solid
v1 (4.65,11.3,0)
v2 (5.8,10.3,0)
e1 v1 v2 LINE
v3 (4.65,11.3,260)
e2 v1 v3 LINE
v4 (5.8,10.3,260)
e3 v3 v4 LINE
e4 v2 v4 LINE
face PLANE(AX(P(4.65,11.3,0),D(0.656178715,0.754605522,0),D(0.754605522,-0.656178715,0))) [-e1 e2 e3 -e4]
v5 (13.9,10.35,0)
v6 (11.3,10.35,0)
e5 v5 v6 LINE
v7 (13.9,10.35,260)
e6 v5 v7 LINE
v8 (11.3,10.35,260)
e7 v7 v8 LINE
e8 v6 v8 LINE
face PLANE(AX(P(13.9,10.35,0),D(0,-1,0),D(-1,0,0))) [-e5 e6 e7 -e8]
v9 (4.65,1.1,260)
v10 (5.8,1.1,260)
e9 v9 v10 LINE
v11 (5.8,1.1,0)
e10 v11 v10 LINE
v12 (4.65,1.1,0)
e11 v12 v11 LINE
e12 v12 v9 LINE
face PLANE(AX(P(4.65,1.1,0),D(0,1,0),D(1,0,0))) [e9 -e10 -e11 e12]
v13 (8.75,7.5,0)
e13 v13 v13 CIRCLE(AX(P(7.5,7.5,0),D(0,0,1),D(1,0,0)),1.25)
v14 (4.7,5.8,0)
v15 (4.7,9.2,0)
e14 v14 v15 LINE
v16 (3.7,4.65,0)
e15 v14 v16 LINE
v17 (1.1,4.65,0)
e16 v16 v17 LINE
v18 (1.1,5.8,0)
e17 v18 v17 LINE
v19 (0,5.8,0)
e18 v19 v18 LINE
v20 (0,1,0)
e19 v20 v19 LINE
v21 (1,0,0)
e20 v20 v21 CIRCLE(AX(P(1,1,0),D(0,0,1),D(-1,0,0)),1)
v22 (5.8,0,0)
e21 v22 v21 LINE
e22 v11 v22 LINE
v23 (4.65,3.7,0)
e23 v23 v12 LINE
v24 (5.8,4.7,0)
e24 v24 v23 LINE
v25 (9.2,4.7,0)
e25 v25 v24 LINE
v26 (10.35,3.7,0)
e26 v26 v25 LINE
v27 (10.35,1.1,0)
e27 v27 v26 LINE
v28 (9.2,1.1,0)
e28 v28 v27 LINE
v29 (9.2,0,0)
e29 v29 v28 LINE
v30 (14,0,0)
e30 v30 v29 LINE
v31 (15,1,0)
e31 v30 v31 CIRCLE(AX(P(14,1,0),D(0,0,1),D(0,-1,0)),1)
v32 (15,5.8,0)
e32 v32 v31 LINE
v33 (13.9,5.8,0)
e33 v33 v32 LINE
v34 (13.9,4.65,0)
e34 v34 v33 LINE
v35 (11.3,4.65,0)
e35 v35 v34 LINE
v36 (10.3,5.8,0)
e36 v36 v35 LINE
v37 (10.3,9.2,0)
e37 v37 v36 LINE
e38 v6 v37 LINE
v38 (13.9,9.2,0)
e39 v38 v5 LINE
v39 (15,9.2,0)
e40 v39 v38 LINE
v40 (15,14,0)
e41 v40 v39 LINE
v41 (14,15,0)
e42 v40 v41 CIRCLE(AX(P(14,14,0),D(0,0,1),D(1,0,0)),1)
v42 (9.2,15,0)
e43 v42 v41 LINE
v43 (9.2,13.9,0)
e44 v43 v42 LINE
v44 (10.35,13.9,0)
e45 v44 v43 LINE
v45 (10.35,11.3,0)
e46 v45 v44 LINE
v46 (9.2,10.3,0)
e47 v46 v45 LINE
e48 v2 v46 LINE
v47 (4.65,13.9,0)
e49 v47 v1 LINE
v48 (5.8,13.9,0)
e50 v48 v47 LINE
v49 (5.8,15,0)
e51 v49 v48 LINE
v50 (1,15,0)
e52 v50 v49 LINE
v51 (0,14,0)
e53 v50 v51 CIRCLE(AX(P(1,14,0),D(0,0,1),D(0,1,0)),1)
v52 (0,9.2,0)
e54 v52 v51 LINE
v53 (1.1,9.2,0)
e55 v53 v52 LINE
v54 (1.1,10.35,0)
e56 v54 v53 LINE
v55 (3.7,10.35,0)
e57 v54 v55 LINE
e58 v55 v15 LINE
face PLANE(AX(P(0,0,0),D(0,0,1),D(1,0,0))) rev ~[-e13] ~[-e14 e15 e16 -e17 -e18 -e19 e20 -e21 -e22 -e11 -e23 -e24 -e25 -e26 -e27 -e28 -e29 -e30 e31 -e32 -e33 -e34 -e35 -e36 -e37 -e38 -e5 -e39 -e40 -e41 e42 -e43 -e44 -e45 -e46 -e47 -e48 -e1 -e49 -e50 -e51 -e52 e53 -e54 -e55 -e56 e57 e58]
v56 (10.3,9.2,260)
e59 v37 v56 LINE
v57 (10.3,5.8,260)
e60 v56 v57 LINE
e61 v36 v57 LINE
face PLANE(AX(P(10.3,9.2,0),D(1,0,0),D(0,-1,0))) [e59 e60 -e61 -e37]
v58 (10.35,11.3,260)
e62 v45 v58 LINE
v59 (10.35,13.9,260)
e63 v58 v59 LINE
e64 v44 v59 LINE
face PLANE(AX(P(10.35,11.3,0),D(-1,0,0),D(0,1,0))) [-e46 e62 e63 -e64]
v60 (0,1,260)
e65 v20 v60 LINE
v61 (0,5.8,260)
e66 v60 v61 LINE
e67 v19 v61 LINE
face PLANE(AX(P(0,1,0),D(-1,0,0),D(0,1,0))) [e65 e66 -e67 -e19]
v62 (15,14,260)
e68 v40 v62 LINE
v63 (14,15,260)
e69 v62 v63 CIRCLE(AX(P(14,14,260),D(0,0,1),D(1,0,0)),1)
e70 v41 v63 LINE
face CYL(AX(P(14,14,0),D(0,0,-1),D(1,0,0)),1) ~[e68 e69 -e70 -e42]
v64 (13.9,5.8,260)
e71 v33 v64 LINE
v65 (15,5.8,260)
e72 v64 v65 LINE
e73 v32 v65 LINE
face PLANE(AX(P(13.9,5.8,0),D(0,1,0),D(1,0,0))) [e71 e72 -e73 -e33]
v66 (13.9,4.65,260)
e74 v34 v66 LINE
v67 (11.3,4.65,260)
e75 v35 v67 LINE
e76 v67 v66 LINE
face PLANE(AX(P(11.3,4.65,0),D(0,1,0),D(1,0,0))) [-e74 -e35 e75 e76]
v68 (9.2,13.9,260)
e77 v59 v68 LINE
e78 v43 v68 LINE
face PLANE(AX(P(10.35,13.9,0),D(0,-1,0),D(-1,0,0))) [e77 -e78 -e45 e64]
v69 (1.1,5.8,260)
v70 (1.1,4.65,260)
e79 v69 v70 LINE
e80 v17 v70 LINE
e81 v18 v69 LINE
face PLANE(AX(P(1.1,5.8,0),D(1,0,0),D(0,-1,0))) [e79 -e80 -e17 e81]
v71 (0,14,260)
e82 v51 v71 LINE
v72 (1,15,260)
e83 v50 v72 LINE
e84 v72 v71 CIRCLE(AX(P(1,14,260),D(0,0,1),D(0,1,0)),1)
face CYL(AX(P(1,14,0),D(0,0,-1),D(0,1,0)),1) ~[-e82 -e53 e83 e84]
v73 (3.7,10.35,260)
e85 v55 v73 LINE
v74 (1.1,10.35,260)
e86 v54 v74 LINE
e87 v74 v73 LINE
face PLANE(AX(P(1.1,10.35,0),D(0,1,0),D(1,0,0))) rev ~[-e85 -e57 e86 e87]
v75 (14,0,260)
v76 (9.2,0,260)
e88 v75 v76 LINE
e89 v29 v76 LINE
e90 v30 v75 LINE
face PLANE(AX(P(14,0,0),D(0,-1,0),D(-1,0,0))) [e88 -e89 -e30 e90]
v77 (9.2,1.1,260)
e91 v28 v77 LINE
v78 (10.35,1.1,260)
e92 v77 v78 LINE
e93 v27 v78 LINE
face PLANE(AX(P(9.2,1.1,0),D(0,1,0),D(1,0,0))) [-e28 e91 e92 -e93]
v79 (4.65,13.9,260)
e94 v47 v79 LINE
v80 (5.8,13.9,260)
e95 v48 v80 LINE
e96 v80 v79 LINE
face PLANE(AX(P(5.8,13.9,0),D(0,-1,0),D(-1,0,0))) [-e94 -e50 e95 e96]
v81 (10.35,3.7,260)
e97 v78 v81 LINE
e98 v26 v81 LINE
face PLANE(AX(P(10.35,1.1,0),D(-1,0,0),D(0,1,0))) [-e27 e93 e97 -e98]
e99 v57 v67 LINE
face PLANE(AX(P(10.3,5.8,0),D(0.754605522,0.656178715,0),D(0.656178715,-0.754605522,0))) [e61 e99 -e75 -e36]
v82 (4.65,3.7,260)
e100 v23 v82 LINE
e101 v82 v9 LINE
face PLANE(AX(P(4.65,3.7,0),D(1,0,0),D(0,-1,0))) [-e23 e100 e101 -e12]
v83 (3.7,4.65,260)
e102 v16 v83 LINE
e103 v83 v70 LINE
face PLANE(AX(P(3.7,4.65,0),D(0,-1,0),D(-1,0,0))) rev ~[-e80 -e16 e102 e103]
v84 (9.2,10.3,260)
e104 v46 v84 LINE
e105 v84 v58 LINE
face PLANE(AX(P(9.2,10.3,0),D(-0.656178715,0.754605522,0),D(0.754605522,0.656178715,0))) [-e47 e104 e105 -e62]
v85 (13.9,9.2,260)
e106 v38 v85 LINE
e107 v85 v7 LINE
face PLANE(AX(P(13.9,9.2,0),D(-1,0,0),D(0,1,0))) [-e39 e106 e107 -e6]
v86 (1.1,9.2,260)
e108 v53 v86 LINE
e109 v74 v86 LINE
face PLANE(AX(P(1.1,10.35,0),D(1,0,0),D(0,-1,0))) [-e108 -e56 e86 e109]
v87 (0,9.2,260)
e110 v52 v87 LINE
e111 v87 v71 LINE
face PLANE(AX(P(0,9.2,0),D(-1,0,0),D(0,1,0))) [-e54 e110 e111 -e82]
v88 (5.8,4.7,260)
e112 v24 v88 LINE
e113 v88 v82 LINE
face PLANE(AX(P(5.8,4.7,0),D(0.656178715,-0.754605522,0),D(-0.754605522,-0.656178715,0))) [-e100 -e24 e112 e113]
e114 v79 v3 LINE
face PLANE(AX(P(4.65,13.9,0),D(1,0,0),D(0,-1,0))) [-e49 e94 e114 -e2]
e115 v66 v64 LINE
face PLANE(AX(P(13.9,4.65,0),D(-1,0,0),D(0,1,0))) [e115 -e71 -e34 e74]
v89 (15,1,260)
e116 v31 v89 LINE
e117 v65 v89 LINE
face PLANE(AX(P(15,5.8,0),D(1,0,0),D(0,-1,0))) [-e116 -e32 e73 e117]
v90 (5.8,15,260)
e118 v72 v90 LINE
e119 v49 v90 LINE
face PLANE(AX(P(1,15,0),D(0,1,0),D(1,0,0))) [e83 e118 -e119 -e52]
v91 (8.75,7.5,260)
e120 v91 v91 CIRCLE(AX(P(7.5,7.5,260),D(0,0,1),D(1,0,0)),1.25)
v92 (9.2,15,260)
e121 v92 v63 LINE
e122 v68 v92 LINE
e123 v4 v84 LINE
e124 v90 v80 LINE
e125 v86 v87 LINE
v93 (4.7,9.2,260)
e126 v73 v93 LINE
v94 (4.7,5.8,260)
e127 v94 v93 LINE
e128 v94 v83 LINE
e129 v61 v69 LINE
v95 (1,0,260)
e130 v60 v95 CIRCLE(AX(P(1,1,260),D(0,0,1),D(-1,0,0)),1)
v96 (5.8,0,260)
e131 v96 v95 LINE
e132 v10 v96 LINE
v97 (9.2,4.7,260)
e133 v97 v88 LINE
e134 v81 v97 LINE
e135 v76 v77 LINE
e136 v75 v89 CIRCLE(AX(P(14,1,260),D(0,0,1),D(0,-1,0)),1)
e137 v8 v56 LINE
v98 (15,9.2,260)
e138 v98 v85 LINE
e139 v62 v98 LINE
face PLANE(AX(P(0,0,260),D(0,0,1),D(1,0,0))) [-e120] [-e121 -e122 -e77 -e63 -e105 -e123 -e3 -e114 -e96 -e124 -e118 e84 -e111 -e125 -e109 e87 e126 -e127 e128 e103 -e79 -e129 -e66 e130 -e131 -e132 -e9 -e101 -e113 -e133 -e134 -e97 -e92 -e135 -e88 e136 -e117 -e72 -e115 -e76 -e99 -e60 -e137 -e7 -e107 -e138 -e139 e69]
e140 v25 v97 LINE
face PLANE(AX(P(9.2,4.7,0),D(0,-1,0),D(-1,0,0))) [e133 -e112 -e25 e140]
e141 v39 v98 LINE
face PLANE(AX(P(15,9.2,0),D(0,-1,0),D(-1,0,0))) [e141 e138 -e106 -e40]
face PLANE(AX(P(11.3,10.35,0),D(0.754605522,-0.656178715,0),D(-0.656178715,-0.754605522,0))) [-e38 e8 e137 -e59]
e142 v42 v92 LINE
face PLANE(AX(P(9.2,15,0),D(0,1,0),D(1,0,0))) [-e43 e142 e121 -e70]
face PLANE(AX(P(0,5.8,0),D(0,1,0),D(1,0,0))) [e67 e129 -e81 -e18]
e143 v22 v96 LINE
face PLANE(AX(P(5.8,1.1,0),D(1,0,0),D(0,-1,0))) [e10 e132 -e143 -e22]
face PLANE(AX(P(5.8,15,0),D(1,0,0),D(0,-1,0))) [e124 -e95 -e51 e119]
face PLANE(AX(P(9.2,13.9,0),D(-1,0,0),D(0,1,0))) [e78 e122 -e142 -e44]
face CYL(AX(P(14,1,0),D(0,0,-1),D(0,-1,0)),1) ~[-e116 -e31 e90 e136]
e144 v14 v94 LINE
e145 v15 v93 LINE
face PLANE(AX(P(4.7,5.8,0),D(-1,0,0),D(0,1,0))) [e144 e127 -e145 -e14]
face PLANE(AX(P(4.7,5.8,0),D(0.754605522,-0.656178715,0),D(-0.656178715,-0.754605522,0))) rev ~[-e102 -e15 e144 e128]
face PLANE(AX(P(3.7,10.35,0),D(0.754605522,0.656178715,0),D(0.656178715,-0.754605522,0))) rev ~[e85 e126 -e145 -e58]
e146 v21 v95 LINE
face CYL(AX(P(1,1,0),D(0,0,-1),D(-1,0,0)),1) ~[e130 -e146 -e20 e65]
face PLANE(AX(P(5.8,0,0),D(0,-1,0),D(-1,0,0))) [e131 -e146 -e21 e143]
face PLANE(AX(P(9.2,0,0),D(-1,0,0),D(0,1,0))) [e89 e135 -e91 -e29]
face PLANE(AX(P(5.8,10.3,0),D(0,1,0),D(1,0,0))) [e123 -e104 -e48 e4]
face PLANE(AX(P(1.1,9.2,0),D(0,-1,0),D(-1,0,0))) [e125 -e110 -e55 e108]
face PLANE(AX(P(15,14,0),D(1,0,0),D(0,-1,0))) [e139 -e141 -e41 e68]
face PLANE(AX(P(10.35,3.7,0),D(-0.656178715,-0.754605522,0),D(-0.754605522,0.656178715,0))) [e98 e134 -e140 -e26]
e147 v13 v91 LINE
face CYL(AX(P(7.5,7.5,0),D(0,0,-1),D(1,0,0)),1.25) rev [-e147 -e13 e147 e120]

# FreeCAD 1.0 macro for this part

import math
import FreeCAD as App
import Part
import Sketcher
from FreeCAD import Vector

doc = App.newDocument("Part")
params = doc.addObject("Spreadsheet::Sheet", "Params")
for row, (alias, value) in enumerate([
    ("sketch1_radius", "1 mm"),
    ("sketch1_diameter", "2.5 mm"),
    ("sketch1_width", "3.4 mm"),
    ("sketch1_width2", "1.1 mm"),
    ("sketch1_width3", "1.15 mm"),
    ("pad1_length", "260 mm"),
], start=1):
    params.set(f"A{row}", alias)
    params.set(f"B{row}", "=" + value)
    params.setAlias(f"B{row}", alias)

body = doc.addObject("PartDesign::Body", "Body")

sketch1 = body.newObject("Sketcher::SketchObject", "Sketch")
sketch1.AttachmentSupport = (doc.getObject("XY_Plane"), [""])
sketch1.MapMode = "FlatFace"
sketch1.addGeometry([
    Part.LineSegment(Vector(0, 5.8, 0), Vector(0, 1, 0)),
    Part.ArcOfCircle(Part.Circle(Vector(1, 1, 0), Vector(0, 0, 1), 1), math.radians(180), math.radians(270)),
    Part.LineSegment(Vector(1, 0, 0), Vector(5.8, 0, 0)),
    Part.LineSegment(Vector(5.8, 0, 0), Vector(5.8, 1.1, 0)),
    Part.LineSegment(Vector(5.8, 1.1, 0), Vector(4.7, 1.1, 0)),
    Part.LineSegment(Vector(4.7, 1.1, 0), Vector(4.7, 3.7, 0)),
    Part.LineSegment(Vector(4.7, 3.7, 0), Vector(5.8, 4.7, 0)),
    Part.LineSegment(Vector(5.8, 4.7, 0), Vector(9.2, 4.7, 0)),
    Part.LineSegment(Vector(9.2, 4.7, 0), Vector(10.3, 3.7, 0)),
    Part.LineSegment(Vector(10.3, 3.7, 0), Vector(10.3, 1.1, 0)),
    Part.LineSegment(Vector(10.3, 1.1, 0), Vector(9.2, 1.1, 0)),
    Part.LineSegment(Vector(9.2, 1.1, 0), Vector(9.2, 0, 0)),
    Part.LineSegment(Vector(9.2, 0, 0), Vector(14, 0, 0)),
    Part.ArcOfCircle(Part.Circle(Vector(14, 1, 0), Vector(0, 0, 1), 1), math.radians(-90), math.radians(0)),
    Part.LineSegment(Vector(15, 1, 0), Vector(15, 5.8, 0)),
    Part.LineSegment(Vector(15, 5.8, 0), Vector(13.9, 5.8, 0)),
    Part.LineSegment(Vector(13.9, 5.8, 0), Vector(13.9, 4.7, 0)),
    Part.LineSegment(Vector(13.9, 4.7, 0), Vector(11.3, 4.7, 0)),
    Part.LineSegment(Vector(11.3, 4.7, 0), Vector(10.3, 5.8, 0)),
    Part.LineSegment(Vector(10.3, 5.8, 0), Vector(10.3, 9.2, 0)),
    Part.LineSegment(Vector(10.3, 9.2, 0), Vector(11.3, 10.3, 0)),
    Part.LineSegment(Vector(11.3, 10.3, 0), Vector(13.9, 10.3, 0)),
    Part.LineSegment(Vector(13.9, 10.3, 0), Vector(13.9, 9.2, 0)),
    Part.LineSegment(Vector(13.9, 9.2, 0), Vector(15, 9.2, 0)),
    Part.LineSegment(Vector(15, 9.2, 0), Vector(15, 14, 0)),
    Part.ArcOfCircle(Part.Circle(Vector(14, 14, 0), Vector(0, 0, 1), 1), math.radians(0), math.radians(90)),
    Part.LineSegment(Vector(14, 15, 0), Vector(9.2, 15, 0)),
    Part.LineSegment(Vector(9.2, 15, 0), Vector(9.2, 13.9, 0)),
    Part.LineSegment(Vector(9.2, 13.9, 0), Vector(10.3, 13.9, 0)),
    Part.LineSegment(Vector(10.3, 13.9, 0), Vector(10.3, 11.3, 0)),
    Part.LineSegment(Vector(10.3, 11.3, 0), Vector(9.2, 10.3, 0)),
    Part.LineSegment(Vector(9.2, 10.3, 0), Vector(5.8, 10.3, 0)),
    Part.LineSegment(Vector(5.8, 10.3, 0), Vector(4.7, 11.3, 0)),
    Part.LineSegment(Vector(4.7, 11.3, 0), Vector(4.7, 13.9, 0)),
    Part.LineSegment(Vector(4.7, 13.9, 0), Vector(5.8, 13.9, 0)),
    Part.LineSegment(Vector(5.8, 13.9, 0), Vector(5.8, 15, 0)),
    Part.LineSegment(Vector(5.8, 15, 0), Vector(1, 15, 0)),
    Part.ArcOfCircle(Part.Circle(Vector(1, 14, 0), Vector(0, 0, 1), 1), math.radians(90), math.radians(180)),
    Part.LineSegment(Vector(0, 14, 0), Vector(0, 9.2, 0)),
    Part.LineSegment(Vector(0, 9.2, 0), Vector(1.1, 9.2, 0)),
    Part.LineSegment(Vector(1.1, 9.2, 0), Vector(1.1, 10.3, 0)),
    Part.LineSegment(Vector(1.1, 10.3, 0), Vector(3.7, 10.3, 0)),
    Part.LineSegment(Vector(3.7, 10.3, 0), Vector(4.7, 9.2, 0)),
    Part.LineSegment(Vector(4.7, 9.2, 0), Vector(4.7, 5.8, 0)),
    Part.LineSegment(Vector(4.7, 5.8, 0), Vector(3.7, 4.7, 0)),
    Part.LineSegment(Vector(3.7, 4.7, 0), Vector(1.1, 4.7, 0)),
    Part.LineSegment(Vector(1.1, 4.7, 0), Vector(1.1, 5.8, 0)),
    Part.LineSegment(Vector(1.1, 5.8, 0), Vector(0, 5.8, 0)),
    Part.Circle(Vector(7.5, 7.5, 0), Vector(0, 0, 1), 1.2),
], False)
sketch1.addConstraint([
    Sketcher.Constraint("Tangent", 0, 2, 1, 1),
    Sketcher.Constraint("Tangent", 1, 2, 2, 1),
    Sketcher.Constraint("Coincident", 2, 2, 3, 1),
    Sketcher.Constraint("Coincident", 3, 2, 4, 1),
    Sketcher.Constraint("Coincident", 4, 2, 5, 1),
    Sketcher.Constraint("Coincident", 5, 2, 6, 1),
    Sketcher.Constraint("Coincident", 6, 2, 7, 1),
    Sketcher.Constraint("Coincident", 7, 2, 8, 1),
    Sketcher.Constraint("Coincident", 8, 2, 9, 1),
    Sketcher.Constraint("Coincident", 9, 2, 10, 1),
    Sketcher.Constraint("Coincident", 10, 2, 11, 1),
    Sketcher.Constraint("Coincident", 11, 2, 12, 1),
    Sketcher.Constraint("Tangent", 12, 2, 13, 1),
    Sketcher.Constraint("Tangent", 13, 2, 14, 1),
    Sketcher.Constraint("Coincident", 14, 2, 15, 1),
    Sketcher.Constraint("Coincident", 15, 2, 16, 1),
    Sketcher.Constraint("Coincident", 16, 2, 17, 1),
    Sketcher.Constraint("Coincident", 17, 2, 18, 1),
    Sketcher.Constraint("Coincident", 18, 2, 19, 1),
    Sketcher.Constraint("Coincident", 19, 2, 20, 1),
    Sketcher.Constraint("Coincident", 20, 2, 21, 1),
    Sketcher.Constraint("Coincident", 21, 2, 22, 1),
    Sketcher.Constraint("Coincident", 22, 2, 23, 1),
    Sketcher.Constraint("Coincident", 23, 2, 24, 1),
    Sketcher.Constraint("Tangent", 24, 2, 25, 1),
    Sketcher.Constraint("Tangent", 25, 2, 26, 1),
    Sketcher.Constraint("Coincident", 26, 2, 27, 1),
    Sketcher.Constraint("Coincident", 27, 2, 28, 1),
    Sketcher.Constraint("Coincident", 28, 2, 29, 1),
    Sketcher.Constraint("Coincident", 29, 2, 30, 1),
    Sketcher.Constraint("Coincident", 30, 2, 31, 1),
    Sketcher.Constraint("Coincident", 31, 2, 32, 1),
    Sketcher.Constraint("Coincident", 32, 2, 33, 1),
    Sketcher.Constraint("Coincident", 33, 2, 34, 1),
    Sketcher.Constraint("Coincident", 34, 2, 35, 1),
    Sketcher.Constraint("Coincident", 35, 2, 36, 1),
    Sketcher.Constraint("Tangent", 36, 2, 37, 1),
    Sketcher.Constraint("Tangent", 37, 2, 38, 1),
    Sketcher.Constraint("Coincident", 38, 2, 39, 1),
    Sketcher.Constraint("Coincident", 39, 2, 40, 1),
    Sketcher.Constraint("Coincident", 40, 2, 41, 1),
    Sketcher.Constraint("Coincident", 41, 2, 42, 1),
    Sketcher.Constraint("Coincident", 42, 2, 43, 1),
    Sketcher.Constraint("Coincident", 43, 2, 44, 1),
    Sketcher.Constraint("Coincident", 44, 2, 45, 1),
    Sketcher.Constraint("Coincident", 45, 2, 46, 1),
    Sketcher.Constraint("Coincident", 46, 2, 47, 1),
    Sketcher.Constraint("Coincident", 47, 2, 0, 1),
    Sketcher.Constraint("Vertical", 0),
    Sketcher.Constraint("Horizontal", 2),
    Sketcher.Constraint("Vertical", 3),
    Sketcher.Constraint("Horizontal", 4),
    Sketcher.Constraint("Vertical", 5),
    Sketcher.Constraint("Horizontal", 7),
    Sketcher.Constraint("Vertical", 9),
    Sketcher.Constraint("Horizontal", 10),
    Sketcher.Constraint("Vertical", 11),
    Sketcher.Constraint("Horizontal", 12),
    Sketcher.Constraint("Vertical", 14),
    Sketcher.Constraint("Horizontal", 15),
    Sketcher.Constraint("Vertical", 16),
    Sketcher.Constraint("Horizontal", 17),
    Sketcher.Constraint("Vertical", 19),
    Sketcher.Constraint("Horizontal", 21),
    Sketcher.Constraint("Vertical", 22),
    Sketcher.Constraint("Horizontal", 23),
    Sketcher.Constraint("Vertical", 24),
    Sketcher.Constraint("Horizontal", 26),
    Sketcher.Constraint("Vertical", 27),
    Sketcher.Constraint("Horizontal", 28),
    Sketcher.Constraint("Vertical", 29),
    Sketcher.Constraint("Horizontal", 31),
    Sketcher.Constraint("Vertical", 33),
    Sketcher.Constraint("Horizontal", 34),
    Sketcher.Constraint("Vertical", 35),
    Sketcher.Constraint("Horizontal", 36),
    Sketcher.Constraint("Vertical", 38),
    Sketcher.Constraint("Horizontal", 39),
    Sketcher.Constraint("Vertical", 40),
    Sketcher.Constraint("Horizontal", 41),
    Sketcher.Constraint("Vertical", 43),
    Sketcher.Constraint("Horizontal", 45),
    Sketcher.Constraint("Vertical", 46),
    Sketcher.Constraint("Horizontal", 47),
    Sketcher.Constraint("Equal", 1, 13),
    Sketcher.Constraint("Equal", 13, 25),
    Sketcher.Constraint("Equal", 25, 37),
    Sketcher.Constraint("PointOnObject", 0, 2, -2),
    Sketcher.Constraint("PointOnObject", 1, 2, -1),
    Sketcher.Constraint("PointOnObject", 11, 2, -1),
    Sketcher.Constraint("PointOnObject", 37, 2, -2),
    Sketcher.Constraint("Perpendicular", 6, 18),
    Sketcher.Constraint("Perpendicular", 8, 20),
    Sketcher.Constraint("Perpendicular", 18, 30),
    Sketcher.Constraint("Perpendicular", 20, 32),
    Sketcher.Constraint("Perpendicular", 30, 42),
    Sketcher.Constraint("Perpendicular", 32, 44),
    Sketcher.Constraint("Horizontal", 25, 3, 37, 3),
    Sketcher.Constraint("Horizontal", 5, 2, 8, 2),
    Sketcher.Constraint("Horizontal", 4, 2, 9, 2),
    Sketcher.Constraint("Horizontal", 15, 2, 18, 2),
    Sketcher.Constraint("Horizontal", 19, 2, 22, 2),
    Sketcher.Constraint("Horizontal", 29, 2, 32, 2),
    Sketcher.Constraint("Horizontal", 28, 2, 33, 2),
    Sketcher.Constraint("Horizontal", 23, 2, 38, 2),
    Sketcher.Constraint("Horizontal", 21, 2, 40, 2),
    Sketcher.Constraint("Horizontal", 39, 2, 42, 2),
    Sketcher.Constraint("Horizontal", 18, 2, 43, 2),
    Sketcher.Constraint("Horizontal", 17, 2, 44, 2),
    Sketcher.Constraint("Horizontal", 43, 2, 46, 2),
    Sketcher.Constraint("Vertical", 13, 3, 25, 3),
    Sketcher.Constraint("Vertical", 3, 2, 6, 2),
    Sketcher.Constraint("Vertical", 7, 2, 10, 2),
    Sketcher.Constraint("Vertical", 17, 2, 20, 2),
    Sketcher.Constraint("Vertical", 16, 2, 21, 2),
    Sketcher.Constraint("Vertical", 11, 2, 26, 2),
    Sketcher.Constraint("Vertical", 9, 2, 28, 2),
    Sketcher.Constraint("Vertical", 27, 2, 30, 2),
    Sketcher.Constraint("Vertical", 6, 2, 31, 2),
    Sketcher.Constraint("Vertical", 5, 2, 32, 2),
    Sketcher.Constraint("Vertical", 31, 2, 34, 2),
    Sketcher.Constraint("Vertical", 40, 2, 45, 2),
    Sketcher.Constraint("Equal", 2, 12),
    Sketcher.Constraint("Equal", 23, 39),
    Sketcher.Constraint("Equal", 21, 41),
    Sketcher.Constraint("Equal", 36, 0),
    Sketcher.Constraint("Equal", 47, 3),
    Sketcher.Constraint("Equal", 45, 5),
    Sketcher.Constraint("Equal", 34, 16),
    Sketcher.Constraint("Equal", 31, 19),
    Sketcher.Constraint("Equal", 14, 24),
    Sketcher.Constraint("Equal", 11, 27),
    Sketcher.Constraint("Equal", 9, 29),
    Sketcher.Constraint("Radius", 1, 1.0),
    Sketcher.Constraint("Diameter", 48, 2.5),
    Sketcher.Constraint("DistanceX", 7, 1, 7, 2, 3.4),
    Sketcher.Constraint("DistanceX", 15, 2, 15, 1, 1.1),
    Sketcher.Constraint("DistanceX", -1, 1, 13, 2, 15.0),
    Sketcher.Constraint("DistanceY", 5, 2, 6, 2, 1.0),
    Sketcher.Constraint("DistanceX", -1, 1, 48, 3, 7.5),
    Sketcher.Constraint("DistanceY", -1, 1, 48, 3, 7.5),
    Sketcher.Constraint("DistanceY", 3, 2, 6, 2, 3.6),
    Sketcher.Constraint("DistanceX", 4, 2, 4, 1, 1.15),
])
sketch1.setExpression("Constraints[133]", "Params.sketch1_radius")
sketch1.setExpression("Constraints[134]", "Params.sketch1_diameter")
sketch1.setExpression("Constraints[135]", "Params.sketch1_width")
sketch1.setExpression("Constraints[136]", "Params.sketch1_width2")
sketch1.setExpression("Constraints[142]", "Params.sketch1_width3")
pad1 = body.newObject("PartDesign::Pad", "Pad")
pad1.Profile = sketch1
pad1.setExpression("Length", "Params.pad1_length")

doc.recompute()
